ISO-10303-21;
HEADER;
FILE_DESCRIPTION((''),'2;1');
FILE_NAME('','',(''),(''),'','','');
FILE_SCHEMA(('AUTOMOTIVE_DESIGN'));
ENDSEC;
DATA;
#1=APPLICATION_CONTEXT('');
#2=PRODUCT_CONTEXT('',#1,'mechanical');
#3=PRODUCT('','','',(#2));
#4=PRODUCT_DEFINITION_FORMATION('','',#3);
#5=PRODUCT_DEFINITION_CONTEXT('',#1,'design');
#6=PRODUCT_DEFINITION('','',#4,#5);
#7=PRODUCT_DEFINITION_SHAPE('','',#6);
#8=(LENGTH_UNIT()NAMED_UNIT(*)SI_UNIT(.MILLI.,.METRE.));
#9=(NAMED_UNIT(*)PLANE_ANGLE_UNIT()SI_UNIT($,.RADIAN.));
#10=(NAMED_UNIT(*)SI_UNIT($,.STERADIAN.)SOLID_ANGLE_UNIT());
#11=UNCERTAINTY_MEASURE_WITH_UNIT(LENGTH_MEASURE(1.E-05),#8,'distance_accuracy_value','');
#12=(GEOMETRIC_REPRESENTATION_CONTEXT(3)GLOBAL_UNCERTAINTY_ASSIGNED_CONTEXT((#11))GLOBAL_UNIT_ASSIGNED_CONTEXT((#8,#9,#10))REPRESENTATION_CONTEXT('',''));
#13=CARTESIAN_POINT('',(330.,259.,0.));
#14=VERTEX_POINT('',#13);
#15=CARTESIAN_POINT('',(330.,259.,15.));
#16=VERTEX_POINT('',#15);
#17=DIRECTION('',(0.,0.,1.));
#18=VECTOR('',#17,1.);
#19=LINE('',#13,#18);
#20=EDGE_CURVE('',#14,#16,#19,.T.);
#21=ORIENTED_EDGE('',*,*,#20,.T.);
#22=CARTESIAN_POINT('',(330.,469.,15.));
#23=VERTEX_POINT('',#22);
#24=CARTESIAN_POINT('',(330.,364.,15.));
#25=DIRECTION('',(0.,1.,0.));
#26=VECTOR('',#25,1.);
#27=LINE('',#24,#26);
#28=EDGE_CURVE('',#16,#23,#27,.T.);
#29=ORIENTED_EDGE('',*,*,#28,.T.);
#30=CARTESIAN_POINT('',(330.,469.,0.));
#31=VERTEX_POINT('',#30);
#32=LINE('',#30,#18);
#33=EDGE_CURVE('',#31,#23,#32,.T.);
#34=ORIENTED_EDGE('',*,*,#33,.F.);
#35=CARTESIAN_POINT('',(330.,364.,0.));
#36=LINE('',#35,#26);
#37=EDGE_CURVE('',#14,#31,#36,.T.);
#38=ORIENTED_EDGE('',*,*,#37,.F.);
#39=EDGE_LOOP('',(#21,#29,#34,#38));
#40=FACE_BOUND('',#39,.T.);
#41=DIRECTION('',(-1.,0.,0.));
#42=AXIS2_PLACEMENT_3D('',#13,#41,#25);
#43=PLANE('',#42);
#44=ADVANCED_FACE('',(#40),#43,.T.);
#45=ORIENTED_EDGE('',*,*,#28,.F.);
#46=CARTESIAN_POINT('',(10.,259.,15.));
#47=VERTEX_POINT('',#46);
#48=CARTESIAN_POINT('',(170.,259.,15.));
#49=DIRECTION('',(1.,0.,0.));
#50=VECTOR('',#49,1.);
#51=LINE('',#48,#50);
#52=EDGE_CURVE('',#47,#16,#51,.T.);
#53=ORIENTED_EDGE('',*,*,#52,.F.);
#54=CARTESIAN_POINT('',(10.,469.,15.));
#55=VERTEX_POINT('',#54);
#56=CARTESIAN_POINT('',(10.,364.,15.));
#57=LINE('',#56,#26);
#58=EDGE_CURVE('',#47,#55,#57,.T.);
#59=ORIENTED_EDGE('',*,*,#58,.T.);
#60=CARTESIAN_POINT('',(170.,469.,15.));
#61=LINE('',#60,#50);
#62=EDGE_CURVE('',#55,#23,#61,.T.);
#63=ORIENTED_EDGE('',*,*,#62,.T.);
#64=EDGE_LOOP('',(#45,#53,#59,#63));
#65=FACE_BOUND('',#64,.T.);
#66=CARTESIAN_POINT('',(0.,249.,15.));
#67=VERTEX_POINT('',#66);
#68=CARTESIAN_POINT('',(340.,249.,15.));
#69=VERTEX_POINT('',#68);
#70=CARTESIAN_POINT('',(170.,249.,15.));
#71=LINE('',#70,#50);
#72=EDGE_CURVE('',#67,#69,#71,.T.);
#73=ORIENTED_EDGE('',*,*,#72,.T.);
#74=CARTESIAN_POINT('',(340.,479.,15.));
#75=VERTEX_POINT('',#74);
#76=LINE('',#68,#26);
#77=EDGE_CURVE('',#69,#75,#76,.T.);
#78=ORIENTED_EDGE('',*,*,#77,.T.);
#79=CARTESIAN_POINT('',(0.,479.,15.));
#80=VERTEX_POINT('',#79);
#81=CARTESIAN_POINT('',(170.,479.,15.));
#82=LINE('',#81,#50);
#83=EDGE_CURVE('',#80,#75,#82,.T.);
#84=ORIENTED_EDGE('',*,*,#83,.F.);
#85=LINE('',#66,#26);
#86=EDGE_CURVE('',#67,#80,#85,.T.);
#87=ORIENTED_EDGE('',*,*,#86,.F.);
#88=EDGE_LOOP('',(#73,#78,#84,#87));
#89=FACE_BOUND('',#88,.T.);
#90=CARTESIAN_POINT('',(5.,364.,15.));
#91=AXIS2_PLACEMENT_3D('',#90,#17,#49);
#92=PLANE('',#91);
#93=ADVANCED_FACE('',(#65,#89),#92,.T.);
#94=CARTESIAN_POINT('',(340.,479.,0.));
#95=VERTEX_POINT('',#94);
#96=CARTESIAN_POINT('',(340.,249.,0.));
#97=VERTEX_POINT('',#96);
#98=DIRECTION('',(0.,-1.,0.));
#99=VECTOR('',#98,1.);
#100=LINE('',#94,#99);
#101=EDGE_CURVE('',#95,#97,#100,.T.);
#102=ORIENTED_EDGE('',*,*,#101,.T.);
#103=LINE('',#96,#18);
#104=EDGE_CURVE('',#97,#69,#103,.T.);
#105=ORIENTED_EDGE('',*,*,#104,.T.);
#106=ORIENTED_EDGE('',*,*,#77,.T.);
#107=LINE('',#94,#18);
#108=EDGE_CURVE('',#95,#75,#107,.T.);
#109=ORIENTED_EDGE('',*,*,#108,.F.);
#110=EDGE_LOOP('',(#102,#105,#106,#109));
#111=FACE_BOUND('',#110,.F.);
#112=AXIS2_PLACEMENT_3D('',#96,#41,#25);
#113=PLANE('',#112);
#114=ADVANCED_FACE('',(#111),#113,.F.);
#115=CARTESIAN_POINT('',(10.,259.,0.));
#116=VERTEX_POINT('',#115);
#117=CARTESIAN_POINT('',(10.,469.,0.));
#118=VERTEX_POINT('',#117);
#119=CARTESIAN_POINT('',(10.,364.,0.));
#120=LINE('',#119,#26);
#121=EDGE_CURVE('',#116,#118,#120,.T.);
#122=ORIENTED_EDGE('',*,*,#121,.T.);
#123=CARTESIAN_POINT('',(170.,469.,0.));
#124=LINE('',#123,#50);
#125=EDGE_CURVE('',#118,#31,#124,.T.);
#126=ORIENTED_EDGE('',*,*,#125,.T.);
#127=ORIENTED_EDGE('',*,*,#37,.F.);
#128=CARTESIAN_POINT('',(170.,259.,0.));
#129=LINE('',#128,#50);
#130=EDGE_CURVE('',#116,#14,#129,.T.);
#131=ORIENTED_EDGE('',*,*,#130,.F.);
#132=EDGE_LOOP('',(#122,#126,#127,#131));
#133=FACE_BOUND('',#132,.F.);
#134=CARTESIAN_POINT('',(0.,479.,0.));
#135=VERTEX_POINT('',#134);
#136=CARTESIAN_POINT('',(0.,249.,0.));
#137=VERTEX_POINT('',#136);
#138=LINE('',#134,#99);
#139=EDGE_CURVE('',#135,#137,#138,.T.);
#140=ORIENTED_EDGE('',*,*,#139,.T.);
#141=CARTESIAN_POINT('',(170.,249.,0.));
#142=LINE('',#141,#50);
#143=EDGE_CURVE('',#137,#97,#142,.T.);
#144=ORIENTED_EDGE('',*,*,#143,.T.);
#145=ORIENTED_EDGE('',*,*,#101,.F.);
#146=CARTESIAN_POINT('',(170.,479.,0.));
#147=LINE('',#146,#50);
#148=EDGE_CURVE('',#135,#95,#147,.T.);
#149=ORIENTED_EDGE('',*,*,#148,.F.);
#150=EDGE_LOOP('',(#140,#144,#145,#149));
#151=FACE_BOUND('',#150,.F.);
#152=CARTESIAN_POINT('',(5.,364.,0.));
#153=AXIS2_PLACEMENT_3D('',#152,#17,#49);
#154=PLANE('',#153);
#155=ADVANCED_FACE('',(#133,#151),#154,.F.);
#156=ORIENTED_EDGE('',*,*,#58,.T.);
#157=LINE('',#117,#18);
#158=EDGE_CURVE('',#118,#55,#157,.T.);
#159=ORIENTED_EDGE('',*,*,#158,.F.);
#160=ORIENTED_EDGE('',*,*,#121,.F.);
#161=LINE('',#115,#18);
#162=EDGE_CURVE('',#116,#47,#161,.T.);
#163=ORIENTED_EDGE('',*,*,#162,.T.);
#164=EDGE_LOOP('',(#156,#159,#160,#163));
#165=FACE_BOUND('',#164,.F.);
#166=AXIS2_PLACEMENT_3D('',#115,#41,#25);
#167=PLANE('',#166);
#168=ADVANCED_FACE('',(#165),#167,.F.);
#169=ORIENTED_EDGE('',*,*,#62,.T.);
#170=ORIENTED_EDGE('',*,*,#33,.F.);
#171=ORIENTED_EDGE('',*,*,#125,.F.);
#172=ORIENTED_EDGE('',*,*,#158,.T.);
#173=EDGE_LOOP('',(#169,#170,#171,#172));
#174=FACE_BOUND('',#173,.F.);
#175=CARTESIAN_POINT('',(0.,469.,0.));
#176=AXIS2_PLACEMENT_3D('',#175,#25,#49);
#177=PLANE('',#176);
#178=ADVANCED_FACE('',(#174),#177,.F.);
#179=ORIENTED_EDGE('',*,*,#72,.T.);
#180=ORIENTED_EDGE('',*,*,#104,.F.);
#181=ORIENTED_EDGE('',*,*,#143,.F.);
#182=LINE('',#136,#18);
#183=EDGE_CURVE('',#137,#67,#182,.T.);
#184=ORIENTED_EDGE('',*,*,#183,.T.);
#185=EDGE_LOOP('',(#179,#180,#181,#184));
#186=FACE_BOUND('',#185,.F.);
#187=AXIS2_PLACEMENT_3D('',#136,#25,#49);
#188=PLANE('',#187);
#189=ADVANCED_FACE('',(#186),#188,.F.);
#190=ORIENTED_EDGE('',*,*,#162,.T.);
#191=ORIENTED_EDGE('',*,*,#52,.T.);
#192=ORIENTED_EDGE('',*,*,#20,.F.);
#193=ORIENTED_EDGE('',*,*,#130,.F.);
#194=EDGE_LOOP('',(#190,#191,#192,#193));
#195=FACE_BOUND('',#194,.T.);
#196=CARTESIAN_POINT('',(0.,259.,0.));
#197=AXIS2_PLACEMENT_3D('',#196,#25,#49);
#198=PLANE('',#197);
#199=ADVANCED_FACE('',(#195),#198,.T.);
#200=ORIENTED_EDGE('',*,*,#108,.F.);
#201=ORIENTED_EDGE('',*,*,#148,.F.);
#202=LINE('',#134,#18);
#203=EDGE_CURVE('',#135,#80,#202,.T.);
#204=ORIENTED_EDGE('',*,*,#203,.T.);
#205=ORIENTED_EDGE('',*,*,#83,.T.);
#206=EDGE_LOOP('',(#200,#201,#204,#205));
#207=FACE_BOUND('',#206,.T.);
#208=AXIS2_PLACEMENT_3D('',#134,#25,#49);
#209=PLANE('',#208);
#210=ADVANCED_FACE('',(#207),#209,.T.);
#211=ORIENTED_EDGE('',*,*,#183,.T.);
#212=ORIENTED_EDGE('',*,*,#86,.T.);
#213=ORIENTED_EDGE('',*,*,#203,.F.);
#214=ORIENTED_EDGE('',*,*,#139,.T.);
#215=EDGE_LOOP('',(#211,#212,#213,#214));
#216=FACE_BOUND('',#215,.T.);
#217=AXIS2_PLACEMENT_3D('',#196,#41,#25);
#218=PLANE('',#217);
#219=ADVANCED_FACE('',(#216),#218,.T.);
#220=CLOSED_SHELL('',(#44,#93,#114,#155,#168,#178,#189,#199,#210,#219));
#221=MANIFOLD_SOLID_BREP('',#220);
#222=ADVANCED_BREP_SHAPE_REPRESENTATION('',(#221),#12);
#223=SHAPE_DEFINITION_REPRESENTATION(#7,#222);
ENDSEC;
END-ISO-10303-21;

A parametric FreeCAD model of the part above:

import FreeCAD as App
import Part
import Sketcher
from FreeCAD import Vector
Q = App.Units.Quantity


def add_polygon(sketch, points):
    """Adds a closed chain of lines whose ends are joined by coincident constraints."""
    first, n = sketch.GeometryCount, len(points)
    for a, b in zip(points, points[1:] + points[:1]):
        sketch.addGeometry(Part.LineSegment(App.Vector(*a, 0), App.Vector(*b, 0)), False)
    for i in range(n):
        sketch.addConstraint(Sketcher.Constraint("Coincident", first + i, 2, first + (i + 1) % n, 1))

doc = App.newDocument("Part")
params = doc.addObject("Spreadsheet::Sheet", "Params")
for row, (alias, value) in enumerate([
    ("sketch1_width", "10 mm"),
    ("sketch1_height", "210 mm"),
    ("pad1_length", "15 mm"),
    ("sketch2_width", "340 mm"),
    ("sketch2_height", "10 mm"),
    ("pad2_length", "15 mm"),
    ("sketch3_width", "10 mm"),
    ("sketch3_height", "210 mm"),
    ("pad3_length", "15 mm"),
    ("sketch4_width", "340 mm"),
    ("sketch4_height", "10 mm"),
    ("pad4_length", "15 mm"),
], start=1):
    params.set(f"A{row}", alias)
    params.set(f"B{row}", "=" + value)
    params.setAlias(f"B{row}", alias)

body = doc.addObject("PartDesign::Body", "Body")

# Sketch on XY plane
sketch1 = doc.addObject("Sketcher::SketchObject", "Sketch")
body.addObject(sketch1)
sketch1.AttachmentSupport = (doc.XY_Plane, [""])
sketch1.MapMode = "FlatFace"
add_polygon(sketch1, [(330, 469), (330, 259), (340, 259), (340, 469)])  # lines 0-3
sketch1.addConstraint([
    Sketcher.Constraint("Vertical", 0),
    Sketcher.Constraint("Horizontal", 1),
    Sketcher.Constraint("Vertical", 2),
    Sketcher.Constraint("Horizontal", 3),
    Sketcher.Constraint("DistanceX", 1, 1, 1, 2, Q("10 mm")),
    Sketcher.Constraint("DistanceY", 0, 2, 0, 1, Q("210 mm")),
    Sketcher.Constraint("DistanceX", -1, 1, 0, 2, Q("330 mm")),
    Sketcher.Constraint("DistanceY", -1, 1, 0, 2, Q("259 mm")),
])
sketch1.setExpression("Constraints[8]", "Params.sketch1_width")
sketch1.setExpression("Constraints[9]", "Params.sketch1_height")
pad1 = doc.addObject("PartDesign::Pad", "Pad")
body.addObject(pad1)
pad1.Profile = sketch1
pad1.setExpression("Length", "Params.pad1_length")
body2 = doc.addObject("PartDesign::Body", "Body001")

# Sketch on XY plane
sketch2 = doc.addObject("Sketcher::SketchObject", "Sketch001")
body2.addObject(sketch2)
sketch2.AttachmentSupport = (doc.getObject("XY_Plane001"), [""])
sketch2.MapMode = "FlatFace"
add_polygon(sketch2, [(0, 259), (0, 249), (340, 249), (340, 259)])  # lines 0-3
sketch2.addConstraint([
    Sketcher.Constraint("Vertical", 0),
    Sketcher.Constraint("Horizontal", 1),
    Sketcher.Constraint("Vertical", 2),
    Sketcher.Constraint("Horizontal", 3),
    Sketcher.Constraint("PointOnObject", 0, 2, -2),
    Sketcher.Constraint("DistanceX", 1, 1, 1, 2, Q("340 mm")),
    Sketcher.Constraint("DistanceY", 0, 2, 0, 1, Q("10 mm")),
    Sketcher.Constraint("DistanceY", -1, 1, 0, 2, Q("249 mm")),
])
sketch2.setExpression("Constraints[9]", "Params.sketch2_width")
sketch2.setExpression("Constraints[10]", "Params.sketch2_height")
pad2 = doc.addObject("PartDesign::Pad", "Pad001")
body2.addObject(pad2)
pad2.Profile = sketch2
pad2.setExpression("Length", "Params.pad2_length")
body3 = doc.addObject("PartDesign::Body", "Body002")

# Sketch on XY plane
sketch3 = doc.addObject("Sketcher::SketchObject", "Sketch002")
body3.addObject(sketch3)
sketch3.AttachmentSupport = (doc.getObject("XY_Plane002"), [""])
sketch3.MapMode = "FlatFace"
add_polygon(sketch3, [(0, 469), (0, 259), (10, 259), (10, 469)])  # lines 0-3
sketch3.addConstraint([
    Sketcher.Constraint("Vertical", 0),
    Sketcher.Constraint("Horizontal", 1),
    Sketcher.Constraint("Vertical", 2),
    Sketcher.Constraint("Horizontal", 3),
    Sketcher.Constraint("PointOnObject", 0, 2, -2),
    Sketcher.Constraint("DistanceX", 1, 1, 1, 2, Q("10 mm")),
    Sketcher.Constraint("DistanceY", 0, 2, 0, 1, Q("210 mm")),
    Sketcher.Constraint("DistanceY", -1, 1, 0, 2, Q("259 mm")),
])
sketch3.setExpression("Constraints[9]", "Params.sketch3_width")
sketch3.setExpression("Constraints[10]", "Params.sketch3_height")
pad3 = doc.addObject("PartDesign::Pad", "Pad002")
body3.addObject(pad3)
pad3.Profile = sketch3
pad3.setExpression("Length", "Params.pad3_length")
body4 = doc.addObject("PartDesign::Body", "Body003")

# Sketch on XY plane
sketch4 = doc.addObject("Sketcher::SketchObject", "Sketch003")
body4.addObject(sketch4)
sketch4.AttachmentSupport = (doc.getObject("XY_Plane003"), [""])
sketch4.MapMode = "FlatFace"
add_polygon(sketch4, [(0, 479), (0, 469), (340, 469), (340, 479)])  # lines 0-3
sketch4.addConstraint([
    Sketcher.Constraint("Vertical", 0),
    Sketcher.Constraint("Horizontal", 1),
    Sketcher.Constraint("Vertical", 2),
    Sketcher.Constraint("Horizontal", 3),
    Sketcher.Constraint("PointOnObject", 0, 2, -2),
    Sketcher.Constraint("DistanceX", 1, 1, 1, 2, Q("340 mm")),
    Sketcher.Constraint("DistanceY", 0, 2, 0, 1, Q("10 mm")),
    Sketcher.Constraint("DistanceY", -1, 1, 0, 2, Q("469 mm")),
])
sketch4.setExpression("Constraints[9]", "Params.sketch4_width")
sketch4.setExpression("Constraints[10]", "Params.sketch4_height")
pad4 = doc.addObject("PartDesign::Pad", "Pad003")
body4.addObject(pad4)
pad4.Profile = sketch4
pad4.setExpression("Length", "Params.pad4_length")
doc.recompute()

boolean = doc.addObject("PartDesign::Boolean", "Boolean")
body4.addObject(boolean)
boolean.Type = "Fuse"
boolean.addObjects([body])
doc.recompute()

boolean2 = doc.addObject("PartDesign::Boolean", "Boolean001")
body4.addObject(boolean2)
boolean2.Type = "Fuse"
boolean2.addObjects([body2])
doc.recompute()

boolean3 = doc.addObject("PartDesign::Boolean", "Boolean002")
body4.addObject(boolean3)
boolean3.Type = "Fuse"
boolean3.addObjects([body3])

doc.recompute()
